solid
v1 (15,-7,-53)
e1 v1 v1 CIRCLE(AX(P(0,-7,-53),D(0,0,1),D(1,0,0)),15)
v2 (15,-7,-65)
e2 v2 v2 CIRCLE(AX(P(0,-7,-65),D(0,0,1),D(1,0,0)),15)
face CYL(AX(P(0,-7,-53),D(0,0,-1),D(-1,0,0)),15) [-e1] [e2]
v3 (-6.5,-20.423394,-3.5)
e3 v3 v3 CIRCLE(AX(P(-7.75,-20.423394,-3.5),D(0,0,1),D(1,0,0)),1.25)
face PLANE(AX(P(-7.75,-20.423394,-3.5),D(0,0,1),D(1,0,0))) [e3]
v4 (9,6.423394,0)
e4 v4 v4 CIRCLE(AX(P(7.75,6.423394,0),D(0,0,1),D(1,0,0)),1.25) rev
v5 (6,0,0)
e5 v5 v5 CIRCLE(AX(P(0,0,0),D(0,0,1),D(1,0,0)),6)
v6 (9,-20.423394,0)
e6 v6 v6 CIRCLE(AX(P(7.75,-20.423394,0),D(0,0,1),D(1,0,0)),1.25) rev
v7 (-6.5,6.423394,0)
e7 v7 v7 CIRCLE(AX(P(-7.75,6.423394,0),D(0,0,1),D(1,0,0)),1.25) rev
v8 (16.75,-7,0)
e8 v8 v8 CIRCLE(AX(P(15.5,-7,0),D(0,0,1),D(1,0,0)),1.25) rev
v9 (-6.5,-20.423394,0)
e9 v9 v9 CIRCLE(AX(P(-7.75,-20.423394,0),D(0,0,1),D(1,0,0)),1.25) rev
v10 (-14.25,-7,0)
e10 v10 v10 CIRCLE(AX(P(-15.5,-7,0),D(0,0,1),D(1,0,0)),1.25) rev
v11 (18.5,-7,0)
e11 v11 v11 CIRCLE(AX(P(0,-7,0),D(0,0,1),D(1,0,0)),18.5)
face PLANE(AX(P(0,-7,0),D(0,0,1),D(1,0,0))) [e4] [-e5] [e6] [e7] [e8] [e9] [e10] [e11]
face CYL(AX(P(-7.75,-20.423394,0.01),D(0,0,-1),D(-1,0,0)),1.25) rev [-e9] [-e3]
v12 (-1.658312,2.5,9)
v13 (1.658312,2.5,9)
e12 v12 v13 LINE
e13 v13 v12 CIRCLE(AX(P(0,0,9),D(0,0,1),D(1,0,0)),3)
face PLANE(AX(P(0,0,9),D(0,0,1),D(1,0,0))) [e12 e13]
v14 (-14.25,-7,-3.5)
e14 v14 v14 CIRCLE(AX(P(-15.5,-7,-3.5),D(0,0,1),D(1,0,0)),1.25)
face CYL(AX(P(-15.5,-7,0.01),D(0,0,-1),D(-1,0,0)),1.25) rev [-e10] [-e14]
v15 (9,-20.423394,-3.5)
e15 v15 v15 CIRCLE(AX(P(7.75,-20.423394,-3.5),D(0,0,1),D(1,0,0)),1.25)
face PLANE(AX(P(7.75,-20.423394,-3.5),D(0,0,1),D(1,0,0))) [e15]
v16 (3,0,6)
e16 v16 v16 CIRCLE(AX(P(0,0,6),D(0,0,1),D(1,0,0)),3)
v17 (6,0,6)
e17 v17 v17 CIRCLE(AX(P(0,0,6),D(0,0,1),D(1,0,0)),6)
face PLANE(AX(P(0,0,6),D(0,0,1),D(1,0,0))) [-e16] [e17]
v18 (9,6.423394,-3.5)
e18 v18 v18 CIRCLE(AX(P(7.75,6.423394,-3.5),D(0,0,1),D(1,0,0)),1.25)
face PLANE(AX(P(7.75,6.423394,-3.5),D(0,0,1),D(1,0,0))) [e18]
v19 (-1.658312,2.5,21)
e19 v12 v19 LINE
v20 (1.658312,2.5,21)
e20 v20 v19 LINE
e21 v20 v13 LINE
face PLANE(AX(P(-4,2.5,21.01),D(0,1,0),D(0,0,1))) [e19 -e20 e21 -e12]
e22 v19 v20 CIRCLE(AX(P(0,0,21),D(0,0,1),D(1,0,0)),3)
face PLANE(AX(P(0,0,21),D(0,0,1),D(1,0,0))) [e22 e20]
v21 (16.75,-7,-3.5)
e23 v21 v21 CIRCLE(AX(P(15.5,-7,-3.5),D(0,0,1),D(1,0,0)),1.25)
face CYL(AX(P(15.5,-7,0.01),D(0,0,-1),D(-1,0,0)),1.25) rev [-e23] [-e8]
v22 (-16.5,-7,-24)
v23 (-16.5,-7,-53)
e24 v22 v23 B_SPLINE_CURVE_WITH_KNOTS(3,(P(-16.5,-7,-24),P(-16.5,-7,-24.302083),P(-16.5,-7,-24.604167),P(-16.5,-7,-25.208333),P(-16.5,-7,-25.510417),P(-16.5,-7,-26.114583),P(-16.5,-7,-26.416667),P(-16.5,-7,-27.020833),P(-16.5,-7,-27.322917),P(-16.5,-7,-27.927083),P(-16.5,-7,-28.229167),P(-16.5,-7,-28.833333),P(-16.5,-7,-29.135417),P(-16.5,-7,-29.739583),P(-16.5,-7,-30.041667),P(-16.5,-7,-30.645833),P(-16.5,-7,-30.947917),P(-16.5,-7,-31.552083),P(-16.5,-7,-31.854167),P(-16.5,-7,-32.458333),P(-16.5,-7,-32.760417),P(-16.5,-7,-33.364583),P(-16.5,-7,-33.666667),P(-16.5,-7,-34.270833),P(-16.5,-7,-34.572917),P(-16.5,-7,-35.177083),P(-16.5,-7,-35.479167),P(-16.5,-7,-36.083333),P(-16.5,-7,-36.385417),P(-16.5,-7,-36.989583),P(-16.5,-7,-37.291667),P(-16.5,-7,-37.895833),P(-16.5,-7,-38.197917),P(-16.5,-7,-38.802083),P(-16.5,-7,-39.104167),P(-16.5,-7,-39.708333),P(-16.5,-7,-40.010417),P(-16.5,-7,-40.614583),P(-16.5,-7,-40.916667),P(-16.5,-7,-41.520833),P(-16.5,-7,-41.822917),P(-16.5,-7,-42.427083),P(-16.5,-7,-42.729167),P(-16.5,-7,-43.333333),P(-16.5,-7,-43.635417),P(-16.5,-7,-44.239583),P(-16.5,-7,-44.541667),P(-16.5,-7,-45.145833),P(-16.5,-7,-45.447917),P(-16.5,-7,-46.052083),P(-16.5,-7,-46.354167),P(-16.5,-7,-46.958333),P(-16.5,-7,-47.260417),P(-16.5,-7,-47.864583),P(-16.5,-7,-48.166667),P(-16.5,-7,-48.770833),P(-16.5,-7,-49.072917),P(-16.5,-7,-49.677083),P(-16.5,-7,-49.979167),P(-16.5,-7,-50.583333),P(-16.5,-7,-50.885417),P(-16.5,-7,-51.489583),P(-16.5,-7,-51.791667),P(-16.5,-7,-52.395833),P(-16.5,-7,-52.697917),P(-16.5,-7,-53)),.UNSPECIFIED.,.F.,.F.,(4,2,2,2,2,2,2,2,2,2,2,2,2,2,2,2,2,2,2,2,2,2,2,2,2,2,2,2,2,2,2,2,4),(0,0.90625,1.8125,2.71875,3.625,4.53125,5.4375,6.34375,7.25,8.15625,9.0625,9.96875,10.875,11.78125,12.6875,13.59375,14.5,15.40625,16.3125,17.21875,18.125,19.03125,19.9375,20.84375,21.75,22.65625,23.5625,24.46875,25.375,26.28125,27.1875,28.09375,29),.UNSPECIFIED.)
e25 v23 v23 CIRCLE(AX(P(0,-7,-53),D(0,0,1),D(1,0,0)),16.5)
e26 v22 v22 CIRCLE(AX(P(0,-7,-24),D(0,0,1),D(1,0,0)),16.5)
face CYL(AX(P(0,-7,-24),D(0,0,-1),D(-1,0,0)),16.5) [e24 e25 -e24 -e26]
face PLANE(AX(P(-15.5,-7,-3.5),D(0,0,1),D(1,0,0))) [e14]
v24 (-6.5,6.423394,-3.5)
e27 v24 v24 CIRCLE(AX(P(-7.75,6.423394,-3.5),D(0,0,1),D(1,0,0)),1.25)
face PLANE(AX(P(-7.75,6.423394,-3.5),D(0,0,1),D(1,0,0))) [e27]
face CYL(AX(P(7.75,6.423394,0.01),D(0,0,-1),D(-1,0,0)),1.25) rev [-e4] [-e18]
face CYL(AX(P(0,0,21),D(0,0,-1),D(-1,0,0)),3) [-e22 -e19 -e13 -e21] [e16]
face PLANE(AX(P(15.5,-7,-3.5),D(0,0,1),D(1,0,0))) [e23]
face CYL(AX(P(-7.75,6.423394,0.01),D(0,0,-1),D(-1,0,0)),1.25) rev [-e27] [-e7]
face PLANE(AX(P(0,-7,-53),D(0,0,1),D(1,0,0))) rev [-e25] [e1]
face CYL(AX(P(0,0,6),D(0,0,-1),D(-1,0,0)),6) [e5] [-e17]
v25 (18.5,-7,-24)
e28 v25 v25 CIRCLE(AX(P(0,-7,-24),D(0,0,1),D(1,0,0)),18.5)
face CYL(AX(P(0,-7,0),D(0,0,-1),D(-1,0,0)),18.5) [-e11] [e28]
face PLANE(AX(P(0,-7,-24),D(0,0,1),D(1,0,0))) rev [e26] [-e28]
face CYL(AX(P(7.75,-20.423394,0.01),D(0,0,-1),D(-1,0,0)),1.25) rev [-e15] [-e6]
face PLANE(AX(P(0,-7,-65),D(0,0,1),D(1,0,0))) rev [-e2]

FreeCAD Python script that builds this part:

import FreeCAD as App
import Part
import Sketcher
Q = App.Units.Quantity

doc = App.newDocument("Part")
body = doc.addObject("PartDesign::Body", "Body")

# Sketch on XY plane
sketch1 = body.newObject("Sketcher::SketchObject", "Sketch")
sketch1.AttachmentSupport = (doc.getObject("XY_Plane"), [""])
sketch1.MapMode = "FlatFace"
sketch1.AttachmentOffset = App.Placement(App.Vector(0, 0, -24), App.Rotation())
sketch1.addGeometry(Part.Circle(App.Vector(0, -7, 0), App.Vector(0, 0, 1), 18), False)
sketch1.addConstraint([
    Sketcher.Constraint("PointOnObject", 0, 3, -2),
    Sketcher.Constraint("Diameter", 0, Q("37 mm")),
    Sketcher.Constraint("DistanceY", 0, 3, -1, 1, Q("7 mm")),
])
pad1 = body.newObject("PartDesign::Pad", "Pad")
pad1.Profile = sketch1
pad1.Length = 24

# Sketch on XY plane
sketch2 = body.newObject("Sketcher::SketchObject", "Sketch001")
sketch2.AttachmentSupport = (doc.getObject("XY_Plane"), [""])
sketch2.MapMode = "FlatFace"
sketch2.AttachmentOffset = App.Placement(App.Vector(0, 0, -3.5), App.Rotation())
sketch2.addGeometry([
    Part.Circle(App.Vector(15.5, -7, 0), App.Vector(0, 0, 1), 1.2),  # 0
    Part.Circle(App.Vector(7.8, 6.4, 0), App.Vector(0, 0, 1), 1.2),  # 1
    Part.Circle(App.Vector(-7.8, 6.4, 0), App.Vector(0, 0, 1), 1.2),  # 2
    Part.Circle(App.Vector(-15.5, -7, 0), App.Vector(0, 0, 1), 1.2),  # 3
    Part.Circle(App.Vector(-7.8, -20.4, 0), App.Vector(0, 0, 1), 1.2),  # 4
    Part.Circle(App.Vector(7.8, -20.4, 0), App.Vector(0, 0, 1), 1.2),  # 5
], False)
sketch2.addConstraint([
    Sketcher.Constraint("Equal", 0, 1),
    Sketcher.Constraint("Equal", 1, 2),
    Sketcher.Constraint("Equal", 2, 3),
    Sketcher.Constraint("Equal", 3, 4),
    Sketcher.Constraint("Equal", 4, 5),
    Sketcher.Constraint("Symmetric", 1, 3, 2, 3, -2),
    Sketcher.Constraint("Symmetric", 0, 3, 3, 3, -2),
    Sketcher.Constraint("Symmetric", 4, 3, 5, 3, -2),
    Sketcher.Constraint("Vertical", 2, 3, 4, 3),
    Sketcher.Constraint("Diameter", 0, Q("2.5 mm")),
    Sketcher.Constraint("DistanceY", 0, 3, -1, 1, Q("7 mm")),
    Sketcher.Constraint("DistanceX", 3, 3, 0, 3, Q("31 mm")),
    Sketcher.Constraint("DistanceX", 2, 3, 1, 3, Q("15.5 mm")),
    Sketcher.Constraint("DistanceY", -1, 1, 1, 3, Q("6.423394 mm")),
    Sketcher.Constraint("DistanceY", 4, 3, -1, 1, Q("20.423394 mm")),
])
pocket1 = body.newObject("PartDesign::Pocket", "Pocket")
pocket1.Profile = sketch2
pocket1.Length = 3.51
pocket1.Reversed = True

# Sketch on XY plane
sketch3 = body.newObject("Sketcher::SketchObject", "Sketch002")
sketch3.AttachmentSupport = (doc.getObject("XY_Plane"), [""])
sketch3.MapMode = "FlatFace"
sketch3.AttachmentOffset = App.Placement(App.Vector(0, 0, -53), App.Rotation())
sketch3.addGeometry(Part.Circle(App.Vector(0, -7, 0), App.Vector(0, 0, 1), 16), False)
sketch3.addConstraint([
    Sketcher.Constraint("PointOnObject", 0, 3, -2),
    Sketcher.Constraint("Diameter", 0, Q("33 mm")),
    Sketcher.Constraint("DistanceY", 0, 3, -1, 1, Q("7 mm")),
])
pad2 = body.newObject("PartDesign::Pad", "Pad001")
pad2.Profile = sketch3
pad2.Length = 29

# Sketch on XY plane
sketch4 = body.newObject("Sketcher::SketchObject", "Sketch003")
sketch4.AttachmentSupport = (doc.getObject("XY_Plane"), [""])
sketch4.MapMode = "FlatFace"
sketch4.AttachmentOffset = App.Placement(App.Vector(0, 0, -65), App.Rotation())
sketch4.addGeometry(Part.Circle(App.Vector(0, -7, 0), App.Vector(0, 0, 1), 15), False)
sketch4.addConstraint([
    Sketcher.Constraint("PointOnObject", 0, 3, -2),
    Sketcher.Constraint("Diameter", 0, Q("30 mm")),
    Sketcher.Constraint("DistanceY", 0, 3, -1, 1, Q("7 mm")),
])
pad3 = body.newObject("PartDesign::Pad", "Pad002")
pad3.Profile = sketch4
pad3.Length = 12

# Sketch on XY plane
sketch5 = body.newObject("Sketcher::SketchObject", "Sketch004")
sketch5.AttachmentSupport = (doc.getObject("XY_Plane"), [""])
sketch5.MapMode = "FlatFace"
sketch5.addGeometry(Part.Circle(App.Vector(0, 0, 0), App.Vector(0, 0, 1), 6), False)
sketch5.addConstraint([
    Sketcher.Constraint("Coincident", 0, 3, -1, 1),
    Sketcher.Constraint("Diameter", 0, Q("12 mm")),
])
pad4 = body.newObject("PartDesign::Pad", "Pad003")
pad4.Profile = sketch5
pad4.Length = 6

# Sketch on XY plane
sketch6 = body.newObject("Sketcher::SketchObject", "Sketch005")
sketch6.AttachmentSupport = (doc.getObject("XY_Plane"), [""])
sketch6.MapMode = "FlatFace"
sketch6.AttachmentOffset = App.Placement(App.Vector(0, 0, 6), App.Rotation())
sketch6.addGeometry(Part.Circle(App.Vector(0, 0, 0), App.Vector(0, 0, 1), 3), False)
sketch6.addConstraint([
    Sketcher.Constraint("Coincident", 0, 3, -1, 1),
    Sketcher.Constraint("Diameter", 0, Q("6 mm")),
])
pad5 = body.newObject("PartDesign::Pad", "Pad004")
pad5.Profile = sketch6
pad5.Length = 15

# Sketch on XY plane
sketch7 = body.newObject("Sketcher::SketchObject", "Sketch006")
sketch7.AttachmentSupport = (doc.getObject("XY_Plane"), [""])
sketch7.MapMode = "FlatFace"
sketch7.AttachmentOffset = App.Placement(App.Vector(0, 0, 9), App.Rotation())
sketch7.addGeometry([
    Part.LineSegment(App.Vector(-4, 4, 0), App.Vector(-4, 2.5, 0)),
    Part.LineSegment(App.Vector(-4, 2.5, 0), App.Vector(4, 2.5, 0)),
    Part.LineSegment(App.Vector(4, 2.5, 0), App.Vector(4, 4, 0)),
    Part.LineSegment(App.Vector(4, 4, 0), App.Vector(-4, 4, 0)),
], False)
sketch7.addConstraint([
    Sketcher.Constraint("Coincident", 0, 2, 1, 1),
    Sketcher.Constraint("Coincident", 1, 2, 2, 1),
    Sketcher.Constraint("Coincident", 2, 2, 3, 1),
    Sketcher.Constraint("Coincident", 3, 2, 0, 1),
    Sketcher.Constraint("Vertical", 0),
    Sketcher.Constraint("Horizontal", 1),
    Sketcher.Constraint("Vertical", 2),
    Sketcher.Constraint("Horizontal", 3),
    Sketcher.Constraint("DistanceX", 1, 1, 1, 2, Q("8 mm")),
    Sketcher.Constraint("DistanceY", 0, 2, 0, 1, Q("1.5 mm")),
    Sketcher.Constraint("DistanceX", 0, 2, -1, 1, Q("4 mm")),
    Sketcher.Constraint("DistanceY", -1, 1, 2, 2, Q("4 mm")),
])
pocket2 = body.newObject("PartDesign::Pocket", "Pocket001")
pocket2.Profile = sketch7
pocket2.Length = 12.01
pocket2.Reversed = True

doc.recompute()
